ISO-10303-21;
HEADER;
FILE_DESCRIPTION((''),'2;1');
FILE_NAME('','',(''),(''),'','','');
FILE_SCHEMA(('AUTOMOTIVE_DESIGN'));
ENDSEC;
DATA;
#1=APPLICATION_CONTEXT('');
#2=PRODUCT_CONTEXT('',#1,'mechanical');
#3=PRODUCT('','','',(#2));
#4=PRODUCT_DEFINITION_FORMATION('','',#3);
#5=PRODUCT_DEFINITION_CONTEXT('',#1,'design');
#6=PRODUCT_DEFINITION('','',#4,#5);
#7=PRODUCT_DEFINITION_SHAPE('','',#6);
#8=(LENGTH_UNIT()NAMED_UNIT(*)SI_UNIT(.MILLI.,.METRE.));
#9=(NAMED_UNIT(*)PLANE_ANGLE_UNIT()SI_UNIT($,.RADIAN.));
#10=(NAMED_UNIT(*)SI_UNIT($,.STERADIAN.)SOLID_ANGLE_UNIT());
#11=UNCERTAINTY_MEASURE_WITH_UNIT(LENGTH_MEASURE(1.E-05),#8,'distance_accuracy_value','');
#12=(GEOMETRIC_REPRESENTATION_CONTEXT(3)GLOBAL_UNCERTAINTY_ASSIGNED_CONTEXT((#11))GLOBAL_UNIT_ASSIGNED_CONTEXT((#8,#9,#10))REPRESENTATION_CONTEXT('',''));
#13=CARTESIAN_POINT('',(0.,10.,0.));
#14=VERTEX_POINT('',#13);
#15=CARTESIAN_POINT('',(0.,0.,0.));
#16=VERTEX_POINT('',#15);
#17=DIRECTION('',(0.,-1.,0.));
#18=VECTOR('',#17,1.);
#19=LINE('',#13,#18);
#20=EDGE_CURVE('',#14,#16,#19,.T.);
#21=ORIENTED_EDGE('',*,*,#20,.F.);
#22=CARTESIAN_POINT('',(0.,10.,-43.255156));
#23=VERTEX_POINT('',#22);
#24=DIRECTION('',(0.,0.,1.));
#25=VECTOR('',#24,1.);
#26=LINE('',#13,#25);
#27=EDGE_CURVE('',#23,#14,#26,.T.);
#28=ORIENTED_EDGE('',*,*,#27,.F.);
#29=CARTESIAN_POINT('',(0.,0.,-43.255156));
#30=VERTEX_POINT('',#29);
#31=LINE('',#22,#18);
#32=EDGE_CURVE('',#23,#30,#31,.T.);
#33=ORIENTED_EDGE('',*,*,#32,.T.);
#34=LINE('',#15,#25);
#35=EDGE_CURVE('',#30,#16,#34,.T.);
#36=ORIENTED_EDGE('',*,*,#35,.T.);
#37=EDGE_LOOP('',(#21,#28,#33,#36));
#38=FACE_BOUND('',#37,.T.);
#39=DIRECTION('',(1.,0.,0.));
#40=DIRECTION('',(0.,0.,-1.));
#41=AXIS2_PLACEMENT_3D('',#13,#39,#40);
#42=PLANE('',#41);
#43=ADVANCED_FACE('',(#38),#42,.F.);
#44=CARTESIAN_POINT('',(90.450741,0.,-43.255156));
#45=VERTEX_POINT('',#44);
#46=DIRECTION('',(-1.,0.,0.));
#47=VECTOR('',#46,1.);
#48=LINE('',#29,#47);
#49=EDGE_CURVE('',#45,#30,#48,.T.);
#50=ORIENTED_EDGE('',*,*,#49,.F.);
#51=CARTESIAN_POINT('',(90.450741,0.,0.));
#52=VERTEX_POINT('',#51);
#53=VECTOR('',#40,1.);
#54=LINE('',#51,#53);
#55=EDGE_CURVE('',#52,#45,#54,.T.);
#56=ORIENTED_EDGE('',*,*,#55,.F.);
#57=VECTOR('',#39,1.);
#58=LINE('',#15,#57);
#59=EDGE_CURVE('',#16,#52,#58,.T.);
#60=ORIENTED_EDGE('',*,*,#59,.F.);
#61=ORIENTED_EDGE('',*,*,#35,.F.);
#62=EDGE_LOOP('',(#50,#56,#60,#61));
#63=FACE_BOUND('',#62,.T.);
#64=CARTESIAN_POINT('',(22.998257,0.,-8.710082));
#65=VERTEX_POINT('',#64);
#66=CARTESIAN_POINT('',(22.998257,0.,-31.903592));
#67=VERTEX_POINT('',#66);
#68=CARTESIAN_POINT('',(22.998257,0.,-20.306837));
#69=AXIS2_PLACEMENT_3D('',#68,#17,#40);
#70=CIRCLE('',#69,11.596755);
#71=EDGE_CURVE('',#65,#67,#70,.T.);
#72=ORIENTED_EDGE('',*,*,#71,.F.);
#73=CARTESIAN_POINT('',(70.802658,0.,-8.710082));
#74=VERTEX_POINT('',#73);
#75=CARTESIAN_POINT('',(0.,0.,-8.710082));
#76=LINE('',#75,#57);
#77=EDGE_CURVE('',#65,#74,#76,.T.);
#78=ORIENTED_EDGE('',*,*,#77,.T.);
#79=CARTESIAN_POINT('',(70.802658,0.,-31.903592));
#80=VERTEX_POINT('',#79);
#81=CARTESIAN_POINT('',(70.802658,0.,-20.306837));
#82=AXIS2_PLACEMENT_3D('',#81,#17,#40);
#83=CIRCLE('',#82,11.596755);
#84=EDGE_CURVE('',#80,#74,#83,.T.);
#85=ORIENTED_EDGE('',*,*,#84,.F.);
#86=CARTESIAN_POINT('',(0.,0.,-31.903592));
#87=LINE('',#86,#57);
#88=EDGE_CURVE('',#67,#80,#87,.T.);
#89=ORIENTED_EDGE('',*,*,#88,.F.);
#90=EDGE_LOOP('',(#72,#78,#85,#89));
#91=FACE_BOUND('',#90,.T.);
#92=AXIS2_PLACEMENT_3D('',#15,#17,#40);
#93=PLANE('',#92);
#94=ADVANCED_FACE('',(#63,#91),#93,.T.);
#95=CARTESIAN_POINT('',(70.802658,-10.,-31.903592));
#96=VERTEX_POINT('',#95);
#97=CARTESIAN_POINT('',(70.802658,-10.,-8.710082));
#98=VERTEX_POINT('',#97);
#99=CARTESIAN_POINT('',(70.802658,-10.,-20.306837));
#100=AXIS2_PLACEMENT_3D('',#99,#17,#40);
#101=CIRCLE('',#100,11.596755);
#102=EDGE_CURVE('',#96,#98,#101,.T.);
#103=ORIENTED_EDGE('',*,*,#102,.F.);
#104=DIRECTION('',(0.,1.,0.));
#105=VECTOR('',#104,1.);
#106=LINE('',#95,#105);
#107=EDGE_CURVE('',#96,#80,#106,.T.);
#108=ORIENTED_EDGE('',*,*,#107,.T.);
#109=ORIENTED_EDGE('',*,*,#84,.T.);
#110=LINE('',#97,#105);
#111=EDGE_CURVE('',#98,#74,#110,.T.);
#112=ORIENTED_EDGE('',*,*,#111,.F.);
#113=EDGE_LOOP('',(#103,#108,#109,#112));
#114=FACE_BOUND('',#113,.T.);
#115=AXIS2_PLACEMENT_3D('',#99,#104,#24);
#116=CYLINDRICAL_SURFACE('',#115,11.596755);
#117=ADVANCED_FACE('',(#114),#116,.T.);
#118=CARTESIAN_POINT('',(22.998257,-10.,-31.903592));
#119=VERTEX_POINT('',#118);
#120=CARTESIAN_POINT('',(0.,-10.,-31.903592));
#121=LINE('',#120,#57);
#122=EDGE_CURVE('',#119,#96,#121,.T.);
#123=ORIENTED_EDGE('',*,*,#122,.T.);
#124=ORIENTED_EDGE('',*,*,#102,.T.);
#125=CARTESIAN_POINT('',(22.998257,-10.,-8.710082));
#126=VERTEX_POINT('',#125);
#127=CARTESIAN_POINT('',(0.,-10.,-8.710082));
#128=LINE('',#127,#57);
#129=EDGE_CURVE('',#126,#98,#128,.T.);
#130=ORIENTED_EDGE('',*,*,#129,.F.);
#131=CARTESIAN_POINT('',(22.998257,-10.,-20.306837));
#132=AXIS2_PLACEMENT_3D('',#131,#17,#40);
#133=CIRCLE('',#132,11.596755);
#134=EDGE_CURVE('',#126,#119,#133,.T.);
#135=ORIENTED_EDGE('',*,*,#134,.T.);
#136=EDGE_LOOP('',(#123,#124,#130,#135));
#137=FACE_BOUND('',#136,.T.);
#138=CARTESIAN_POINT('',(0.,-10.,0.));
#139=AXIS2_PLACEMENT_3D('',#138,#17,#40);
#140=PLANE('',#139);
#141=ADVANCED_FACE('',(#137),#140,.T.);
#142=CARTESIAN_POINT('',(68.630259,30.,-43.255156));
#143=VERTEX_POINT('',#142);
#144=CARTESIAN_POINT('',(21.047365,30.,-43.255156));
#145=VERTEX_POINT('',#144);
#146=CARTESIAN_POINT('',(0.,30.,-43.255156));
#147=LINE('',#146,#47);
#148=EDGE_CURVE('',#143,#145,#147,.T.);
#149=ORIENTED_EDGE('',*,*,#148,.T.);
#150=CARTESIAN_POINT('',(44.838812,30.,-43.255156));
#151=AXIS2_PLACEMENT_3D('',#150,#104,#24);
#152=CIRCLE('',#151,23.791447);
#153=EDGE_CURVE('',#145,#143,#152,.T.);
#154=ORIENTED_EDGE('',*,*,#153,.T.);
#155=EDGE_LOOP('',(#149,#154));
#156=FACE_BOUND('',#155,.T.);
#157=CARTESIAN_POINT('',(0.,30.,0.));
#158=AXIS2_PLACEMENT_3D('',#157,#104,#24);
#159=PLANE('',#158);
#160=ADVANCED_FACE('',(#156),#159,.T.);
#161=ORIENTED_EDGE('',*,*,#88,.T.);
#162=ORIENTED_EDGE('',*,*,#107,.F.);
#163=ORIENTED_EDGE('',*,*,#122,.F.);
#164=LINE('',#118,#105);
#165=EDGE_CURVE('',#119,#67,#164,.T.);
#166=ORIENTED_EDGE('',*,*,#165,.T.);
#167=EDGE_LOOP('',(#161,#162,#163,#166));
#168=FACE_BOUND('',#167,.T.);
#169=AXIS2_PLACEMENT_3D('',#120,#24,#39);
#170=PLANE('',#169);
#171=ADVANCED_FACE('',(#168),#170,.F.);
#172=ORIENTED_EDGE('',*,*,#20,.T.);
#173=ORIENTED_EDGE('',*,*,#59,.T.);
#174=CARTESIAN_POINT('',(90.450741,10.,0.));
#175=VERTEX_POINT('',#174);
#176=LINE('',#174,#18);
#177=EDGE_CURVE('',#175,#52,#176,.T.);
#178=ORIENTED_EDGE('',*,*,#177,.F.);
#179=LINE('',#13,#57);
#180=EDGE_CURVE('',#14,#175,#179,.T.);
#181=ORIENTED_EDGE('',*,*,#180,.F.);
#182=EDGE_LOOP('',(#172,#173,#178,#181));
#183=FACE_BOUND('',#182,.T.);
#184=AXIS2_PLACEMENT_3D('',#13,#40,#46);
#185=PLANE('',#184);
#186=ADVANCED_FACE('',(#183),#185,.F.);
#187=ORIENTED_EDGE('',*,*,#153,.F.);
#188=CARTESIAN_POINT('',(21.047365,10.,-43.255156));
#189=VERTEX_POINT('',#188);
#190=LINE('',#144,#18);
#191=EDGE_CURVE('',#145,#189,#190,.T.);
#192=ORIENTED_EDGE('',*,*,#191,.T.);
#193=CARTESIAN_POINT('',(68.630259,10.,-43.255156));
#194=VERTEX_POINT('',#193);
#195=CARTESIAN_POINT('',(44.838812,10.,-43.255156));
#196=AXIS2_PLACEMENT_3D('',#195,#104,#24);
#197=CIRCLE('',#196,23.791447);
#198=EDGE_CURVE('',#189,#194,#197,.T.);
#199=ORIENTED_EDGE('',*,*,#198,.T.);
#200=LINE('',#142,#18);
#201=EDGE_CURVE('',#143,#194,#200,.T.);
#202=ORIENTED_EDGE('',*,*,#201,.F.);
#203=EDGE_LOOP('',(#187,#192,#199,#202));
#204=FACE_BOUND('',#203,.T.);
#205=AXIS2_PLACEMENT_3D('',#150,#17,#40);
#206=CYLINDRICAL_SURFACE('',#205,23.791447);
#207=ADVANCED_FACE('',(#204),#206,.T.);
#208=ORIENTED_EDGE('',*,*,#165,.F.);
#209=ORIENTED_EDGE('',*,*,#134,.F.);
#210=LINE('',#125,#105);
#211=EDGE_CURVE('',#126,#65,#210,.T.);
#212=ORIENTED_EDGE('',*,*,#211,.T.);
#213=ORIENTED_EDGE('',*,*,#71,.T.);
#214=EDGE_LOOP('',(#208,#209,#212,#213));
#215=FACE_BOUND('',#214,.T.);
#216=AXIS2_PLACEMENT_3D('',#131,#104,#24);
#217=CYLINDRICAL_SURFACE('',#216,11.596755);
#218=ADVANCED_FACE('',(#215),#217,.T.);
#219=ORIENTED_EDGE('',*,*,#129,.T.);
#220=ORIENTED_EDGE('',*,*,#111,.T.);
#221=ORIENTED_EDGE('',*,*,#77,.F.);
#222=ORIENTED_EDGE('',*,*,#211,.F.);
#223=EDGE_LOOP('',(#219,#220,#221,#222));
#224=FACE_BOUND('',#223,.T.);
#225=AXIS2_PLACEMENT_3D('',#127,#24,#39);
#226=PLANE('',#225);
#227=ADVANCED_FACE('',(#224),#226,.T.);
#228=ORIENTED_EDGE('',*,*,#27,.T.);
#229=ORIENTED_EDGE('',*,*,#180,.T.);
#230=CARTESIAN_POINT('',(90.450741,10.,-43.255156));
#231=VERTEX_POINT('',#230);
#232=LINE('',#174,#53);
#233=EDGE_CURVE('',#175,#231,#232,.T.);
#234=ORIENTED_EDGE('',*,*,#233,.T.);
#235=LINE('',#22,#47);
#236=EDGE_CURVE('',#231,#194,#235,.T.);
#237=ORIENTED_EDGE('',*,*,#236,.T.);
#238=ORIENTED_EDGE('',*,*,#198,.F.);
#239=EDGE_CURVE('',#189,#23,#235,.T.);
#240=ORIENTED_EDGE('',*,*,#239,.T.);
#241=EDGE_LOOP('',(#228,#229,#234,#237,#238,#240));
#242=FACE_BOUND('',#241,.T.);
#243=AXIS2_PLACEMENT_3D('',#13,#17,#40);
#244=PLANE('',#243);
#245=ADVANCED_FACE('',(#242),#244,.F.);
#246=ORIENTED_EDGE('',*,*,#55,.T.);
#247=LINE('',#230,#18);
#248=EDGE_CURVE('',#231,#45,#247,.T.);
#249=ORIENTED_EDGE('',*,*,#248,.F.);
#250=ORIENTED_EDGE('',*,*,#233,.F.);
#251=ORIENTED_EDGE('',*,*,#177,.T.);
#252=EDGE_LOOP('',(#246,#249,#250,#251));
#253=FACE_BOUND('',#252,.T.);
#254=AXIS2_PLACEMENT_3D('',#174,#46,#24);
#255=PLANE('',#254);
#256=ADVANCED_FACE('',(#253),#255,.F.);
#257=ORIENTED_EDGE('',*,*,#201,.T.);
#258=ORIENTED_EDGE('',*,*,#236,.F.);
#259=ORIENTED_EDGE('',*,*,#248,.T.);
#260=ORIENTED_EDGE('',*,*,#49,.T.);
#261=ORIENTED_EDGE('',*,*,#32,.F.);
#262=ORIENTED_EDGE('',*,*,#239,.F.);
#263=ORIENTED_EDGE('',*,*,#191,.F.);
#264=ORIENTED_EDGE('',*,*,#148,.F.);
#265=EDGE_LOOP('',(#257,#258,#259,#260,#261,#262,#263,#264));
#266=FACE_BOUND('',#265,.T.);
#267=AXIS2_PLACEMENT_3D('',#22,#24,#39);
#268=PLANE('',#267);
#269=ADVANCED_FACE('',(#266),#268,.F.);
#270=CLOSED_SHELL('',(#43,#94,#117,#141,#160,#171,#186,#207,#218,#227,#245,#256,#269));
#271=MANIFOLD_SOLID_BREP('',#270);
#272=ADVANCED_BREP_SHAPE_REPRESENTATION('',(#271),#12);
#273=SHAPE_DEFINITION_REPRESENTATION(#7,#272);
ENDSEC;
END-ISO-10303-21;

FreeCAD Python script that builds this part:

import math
import FreeCAD as App
import Part
import Sketcher

V = App.Vector
Q = App.Units.Quantity

doc = App.newDocument("Part")
params = doc.addObject("Spreadsheet::Sheet", "Params")
for row, (alias, value) in enumerate([
    ("pad1_length", "10 mm"),
    ("pad2_length", "20 mm"),
    ("pad3_length", "10 mm"),
], start=1):
    params.set(f"A{row}", alias)
    params.set(f"B{row}", "=" + value)
    params.setAlias(f"B{row}", alias)

body = doc.addObject("PartDesign::Body", "Body")

# Sketch on XZ plane
sketch1 = doc.addObject("Sketcher::SketchObject", "Sketch")
body.addObject(sketch1)
sketch1.AttachmentSupport = (doc.XZ_Plane, [""])
sketch1.MapMode = "FlatFace"
sketch1.addGeometry(Part.LineSegment(V(0, -43, 0), V(0, 0, 0)), False)
sketch1.addGeometry(Part.LineSegment(V(0, 0, 0), V(90, 0, 0)), False)
sketch1.addGeometry(Part.LineSegment(V(90, 0, 0), V(90, -43, 0)), False)
sketch1.addGeometry(Part.LineSegment(V(90, -43, 0), V(0, -43, 0)), False)
sketch1.addConstraint(Sketcher.Constraint("Coincident", 0, 2, 1, 1))
sketch1.addConstraint(Sketcher.Constraint("Coincident", 1, 2, 2, 1))
sketch1.addConstraint(Sketcher.Constraint("Coincident", 2, 2, 3, 1))
sketch1.addConstraint(Sketcher.Constraint("Coincident", 3, 2, 0, 1))
sketch1.addConstraint(Sketcher.Constraint("Vertical", 0))
sketch1.addConstraint(Sketcher.Constraint("Horizontal", 1))
sketch1.addConstraint(Sketcher.Constraint("Vertical", 2))
sketch1.addConstraint(Sketcher.Constraint("Horizontal", 3))
sketch1.addConstraint(Sketcher.Constraint("Coincident", 0, 2, -1, 1))
sketch1.addConstraint(Sketcher.Constraint("DistanceX", 1, 1, 1, 2, Q("90.450741 mm")))
sketch1.addConstraint(Sketcher.Constraint("DistanceY", 0, 1, 0, 2, Q("43.255156 mm")))
pad1 = doc.addObject("PartDesign::Pad", "Pad")
body.addObject(pad1)
pad1.Profile = sketch1
pad1.setExpression("Length", "Params.pad1_length")
pad1.Reversed = True

# Sketch on XZ plane
sketch2 = doc.addObject("Sketcher::SketchObject", "Sketch001")
body.addObject(sketch2)
sketch2.AttachmentSupport = (doc.XZ_Plane, [""])
sketch2.MapMode = "FlatFace"
sketch2.AttachmentOffset = App.Placement(V(0, 0, -10), App.Rotation())
sketch2.addGeometry(Part.LineSegment(V(69, -43, 0), V(21, -43, 0)), False)
sketch2.addGeometry(Part.ArcOfCircle(Part.Circle(V(45, -43, 0), V(0, 0, 1), 24), math.radians(0), math.radians(180)), False)
sketch2.addConstraint(Sketcher.Constraint("Coincident", 0, 1, 1, 1))
sketch2.addConstraint(Sketcher.Constraint("Coincident", 1, 2, 0, 2))
sketch2.addConstraint(Sketcher.Constraint("Horizontal", 0))
sketch2.addConstraint(Sketcher.Constraint("Horizontal", 1, 3, 0, 1))
sketch2.addConstraint(Sketcher.Constraint("Radius", 1, Q("23.791447 mm")))
sketch2.addConstraint(Sketcher.Constraint("DistanceX", -1, 1, 0, 1, Q("68.630259 mm")))
sketch2.addConstraint(Sketcher.Constraint("DistanceY", 1, 3, -1, 1, Q("43.255156 mm")))
pad2 = doc.addObject("PartDesign::Pad", "Pad001")
body.addObject(pad2)
pad2.Profile = sketch2
pad2.setExpression("Length", "Params.pad2_length")
pad2.Reversed = True

# Sketch on XZ plane
sketch3 = doc.addObject("Sketcher::SketchObject", "Sketch002")
body.addObject(sketch3)
sketch3.AttachmentSupport = (doc.XZ_Plane, [""])
sketch3.MapMode = "FlatFace"
sketch3.addGeometry(Part.LineSegment(V(71, -9, 0), V(23, -9, 0)), False)
sketch3.addGeometry(Part.ArcOfCircle(Part.Circle(V(23, -20, 0), V(0, 0, 1), 12), math.radians(90), math.radians(270)), False)
sketch3.addGeometry(Part.LineSegment(V(23, -32, 0), V(71, -32, 0)), False)
sketch3.addGeometry(Part.ArcOfCircle(Part.Circle(V(71, -20, 0), V(0, 0, 1), 12), math.radians(-90), math.radians(90)), False)
sketch3.addConstraint(Sketcher.Constraint("Tangent", 0, 2, 1, 1))
sketch3.addConstraint(Sketcher.Constraint("Tangent", 1, 2, 2, 1))
sketch3.addConstraint(Sketcher.Constraint("Tangent", 2, 2, 3, 1))
sketch3.addConstraint(Sketcher.Constraint("Tangent", 3, 2, 0, 1))
sketch3.addConstraint(Sketcher.Constraint("Horizontal", 0))
sketch3.addConstraint(Sketcher.Constraint("Horizontal", 2))
sketch3.addConstraint(Sketcher.Constraint("DistanceX", 0, 2, 0, 1, Q("47.804401 mm")))
sketch3.addConstraint(Sketcher.Constraint("Radius", 1, Q("11.596755 mm")))
sketch3.addConstraint(Sketcher.Constraint("DistanceY", 0, 2, -1, 1, Q("8.710082 mm")))
sketch3.addConstraint(Sketcher.Constraint("DistanceX", -1, 1, 1, 3, Q("22.998257 mm")))
pad3 = doc.addObject("PartDesign::Pad", "Pad002")
body.addObject(pad3)
pad3.Profile = sketch3
pad3.setExpression("Length", "Params.pad3_length")

doc.recompute()
